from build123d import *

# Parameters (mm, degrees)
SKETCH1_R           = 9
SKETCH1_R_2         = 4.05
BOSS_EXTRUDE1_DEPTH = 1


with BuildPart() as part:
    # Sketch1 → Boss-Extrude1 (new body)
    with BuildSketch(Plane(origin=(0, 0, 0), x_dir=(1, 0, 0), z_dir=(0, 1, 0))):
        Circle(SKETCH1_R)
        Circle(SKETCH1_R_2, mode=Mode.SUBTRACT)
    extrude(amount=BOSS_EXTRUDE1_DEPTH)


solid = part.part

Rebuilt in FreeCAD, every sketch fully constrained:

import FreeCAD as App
import Part
import Sketcher
from FreeCAD import Vector
Q = App.Units.Quantity

doc = App.newDocument("Part")
params = doc.addObject("Spreadsheet::Sheet", "Params")
for row, (alias, value) in enumerate([
    ("sketch1_diameter", "18 mm"),
    ("sketch1_diameter2", "8.1 mm"),
    ("pad1_length", "1 mm"),
], start=1):
    params.set(f"A{row}", alias)
    params.set(f"B{row}", "=" + value)
    params.setAlias(f"B{row}", alias)

body = doc.addObject("PartDesign::Body", "Body")

# Sketch on XZ plane
sketch1 = body.newObject("Sketcher::SketchObject", "Sketch")
sketch1.AttachmentSupport = (doc.getObject("XZ_Plane"), [""])
sketch1.MapMode = "FlatFace"
sketch1.addGeometry([
    Part.Circle(Vector(0, 0, 0), Vector(0, 0, 1), 9),
    Part.Circle(Vector(0, 0, 0), Vector(0, 0, 1), 4),
], False)
sketch1.addConstraint([
    Sketcher.Constraint("Coincident", 0, 3, -1, 1),
    Sketcher.Constraint("Coincident", 1, 3, -1, 1),
    Sketcher.Constraint("Diameter", 0, Q("18 mm")),
    Sketcher.Constraint("Diameter", 1, Q("8.1 mm")),
])
sketch1.setExpression("Constraints[2]", "Params.sketch1_diameter")
sketch1.setExpression("Constraints[3]", "Params.sketch1_diameter2")
pad1 = body.newObject("PartDesign::Pad", "Pad")
pad1.Profile = sketch1
pad1.setExpression("Length", "Params.pad1_length")
pad1.Reversed = True

doc.recompute()
